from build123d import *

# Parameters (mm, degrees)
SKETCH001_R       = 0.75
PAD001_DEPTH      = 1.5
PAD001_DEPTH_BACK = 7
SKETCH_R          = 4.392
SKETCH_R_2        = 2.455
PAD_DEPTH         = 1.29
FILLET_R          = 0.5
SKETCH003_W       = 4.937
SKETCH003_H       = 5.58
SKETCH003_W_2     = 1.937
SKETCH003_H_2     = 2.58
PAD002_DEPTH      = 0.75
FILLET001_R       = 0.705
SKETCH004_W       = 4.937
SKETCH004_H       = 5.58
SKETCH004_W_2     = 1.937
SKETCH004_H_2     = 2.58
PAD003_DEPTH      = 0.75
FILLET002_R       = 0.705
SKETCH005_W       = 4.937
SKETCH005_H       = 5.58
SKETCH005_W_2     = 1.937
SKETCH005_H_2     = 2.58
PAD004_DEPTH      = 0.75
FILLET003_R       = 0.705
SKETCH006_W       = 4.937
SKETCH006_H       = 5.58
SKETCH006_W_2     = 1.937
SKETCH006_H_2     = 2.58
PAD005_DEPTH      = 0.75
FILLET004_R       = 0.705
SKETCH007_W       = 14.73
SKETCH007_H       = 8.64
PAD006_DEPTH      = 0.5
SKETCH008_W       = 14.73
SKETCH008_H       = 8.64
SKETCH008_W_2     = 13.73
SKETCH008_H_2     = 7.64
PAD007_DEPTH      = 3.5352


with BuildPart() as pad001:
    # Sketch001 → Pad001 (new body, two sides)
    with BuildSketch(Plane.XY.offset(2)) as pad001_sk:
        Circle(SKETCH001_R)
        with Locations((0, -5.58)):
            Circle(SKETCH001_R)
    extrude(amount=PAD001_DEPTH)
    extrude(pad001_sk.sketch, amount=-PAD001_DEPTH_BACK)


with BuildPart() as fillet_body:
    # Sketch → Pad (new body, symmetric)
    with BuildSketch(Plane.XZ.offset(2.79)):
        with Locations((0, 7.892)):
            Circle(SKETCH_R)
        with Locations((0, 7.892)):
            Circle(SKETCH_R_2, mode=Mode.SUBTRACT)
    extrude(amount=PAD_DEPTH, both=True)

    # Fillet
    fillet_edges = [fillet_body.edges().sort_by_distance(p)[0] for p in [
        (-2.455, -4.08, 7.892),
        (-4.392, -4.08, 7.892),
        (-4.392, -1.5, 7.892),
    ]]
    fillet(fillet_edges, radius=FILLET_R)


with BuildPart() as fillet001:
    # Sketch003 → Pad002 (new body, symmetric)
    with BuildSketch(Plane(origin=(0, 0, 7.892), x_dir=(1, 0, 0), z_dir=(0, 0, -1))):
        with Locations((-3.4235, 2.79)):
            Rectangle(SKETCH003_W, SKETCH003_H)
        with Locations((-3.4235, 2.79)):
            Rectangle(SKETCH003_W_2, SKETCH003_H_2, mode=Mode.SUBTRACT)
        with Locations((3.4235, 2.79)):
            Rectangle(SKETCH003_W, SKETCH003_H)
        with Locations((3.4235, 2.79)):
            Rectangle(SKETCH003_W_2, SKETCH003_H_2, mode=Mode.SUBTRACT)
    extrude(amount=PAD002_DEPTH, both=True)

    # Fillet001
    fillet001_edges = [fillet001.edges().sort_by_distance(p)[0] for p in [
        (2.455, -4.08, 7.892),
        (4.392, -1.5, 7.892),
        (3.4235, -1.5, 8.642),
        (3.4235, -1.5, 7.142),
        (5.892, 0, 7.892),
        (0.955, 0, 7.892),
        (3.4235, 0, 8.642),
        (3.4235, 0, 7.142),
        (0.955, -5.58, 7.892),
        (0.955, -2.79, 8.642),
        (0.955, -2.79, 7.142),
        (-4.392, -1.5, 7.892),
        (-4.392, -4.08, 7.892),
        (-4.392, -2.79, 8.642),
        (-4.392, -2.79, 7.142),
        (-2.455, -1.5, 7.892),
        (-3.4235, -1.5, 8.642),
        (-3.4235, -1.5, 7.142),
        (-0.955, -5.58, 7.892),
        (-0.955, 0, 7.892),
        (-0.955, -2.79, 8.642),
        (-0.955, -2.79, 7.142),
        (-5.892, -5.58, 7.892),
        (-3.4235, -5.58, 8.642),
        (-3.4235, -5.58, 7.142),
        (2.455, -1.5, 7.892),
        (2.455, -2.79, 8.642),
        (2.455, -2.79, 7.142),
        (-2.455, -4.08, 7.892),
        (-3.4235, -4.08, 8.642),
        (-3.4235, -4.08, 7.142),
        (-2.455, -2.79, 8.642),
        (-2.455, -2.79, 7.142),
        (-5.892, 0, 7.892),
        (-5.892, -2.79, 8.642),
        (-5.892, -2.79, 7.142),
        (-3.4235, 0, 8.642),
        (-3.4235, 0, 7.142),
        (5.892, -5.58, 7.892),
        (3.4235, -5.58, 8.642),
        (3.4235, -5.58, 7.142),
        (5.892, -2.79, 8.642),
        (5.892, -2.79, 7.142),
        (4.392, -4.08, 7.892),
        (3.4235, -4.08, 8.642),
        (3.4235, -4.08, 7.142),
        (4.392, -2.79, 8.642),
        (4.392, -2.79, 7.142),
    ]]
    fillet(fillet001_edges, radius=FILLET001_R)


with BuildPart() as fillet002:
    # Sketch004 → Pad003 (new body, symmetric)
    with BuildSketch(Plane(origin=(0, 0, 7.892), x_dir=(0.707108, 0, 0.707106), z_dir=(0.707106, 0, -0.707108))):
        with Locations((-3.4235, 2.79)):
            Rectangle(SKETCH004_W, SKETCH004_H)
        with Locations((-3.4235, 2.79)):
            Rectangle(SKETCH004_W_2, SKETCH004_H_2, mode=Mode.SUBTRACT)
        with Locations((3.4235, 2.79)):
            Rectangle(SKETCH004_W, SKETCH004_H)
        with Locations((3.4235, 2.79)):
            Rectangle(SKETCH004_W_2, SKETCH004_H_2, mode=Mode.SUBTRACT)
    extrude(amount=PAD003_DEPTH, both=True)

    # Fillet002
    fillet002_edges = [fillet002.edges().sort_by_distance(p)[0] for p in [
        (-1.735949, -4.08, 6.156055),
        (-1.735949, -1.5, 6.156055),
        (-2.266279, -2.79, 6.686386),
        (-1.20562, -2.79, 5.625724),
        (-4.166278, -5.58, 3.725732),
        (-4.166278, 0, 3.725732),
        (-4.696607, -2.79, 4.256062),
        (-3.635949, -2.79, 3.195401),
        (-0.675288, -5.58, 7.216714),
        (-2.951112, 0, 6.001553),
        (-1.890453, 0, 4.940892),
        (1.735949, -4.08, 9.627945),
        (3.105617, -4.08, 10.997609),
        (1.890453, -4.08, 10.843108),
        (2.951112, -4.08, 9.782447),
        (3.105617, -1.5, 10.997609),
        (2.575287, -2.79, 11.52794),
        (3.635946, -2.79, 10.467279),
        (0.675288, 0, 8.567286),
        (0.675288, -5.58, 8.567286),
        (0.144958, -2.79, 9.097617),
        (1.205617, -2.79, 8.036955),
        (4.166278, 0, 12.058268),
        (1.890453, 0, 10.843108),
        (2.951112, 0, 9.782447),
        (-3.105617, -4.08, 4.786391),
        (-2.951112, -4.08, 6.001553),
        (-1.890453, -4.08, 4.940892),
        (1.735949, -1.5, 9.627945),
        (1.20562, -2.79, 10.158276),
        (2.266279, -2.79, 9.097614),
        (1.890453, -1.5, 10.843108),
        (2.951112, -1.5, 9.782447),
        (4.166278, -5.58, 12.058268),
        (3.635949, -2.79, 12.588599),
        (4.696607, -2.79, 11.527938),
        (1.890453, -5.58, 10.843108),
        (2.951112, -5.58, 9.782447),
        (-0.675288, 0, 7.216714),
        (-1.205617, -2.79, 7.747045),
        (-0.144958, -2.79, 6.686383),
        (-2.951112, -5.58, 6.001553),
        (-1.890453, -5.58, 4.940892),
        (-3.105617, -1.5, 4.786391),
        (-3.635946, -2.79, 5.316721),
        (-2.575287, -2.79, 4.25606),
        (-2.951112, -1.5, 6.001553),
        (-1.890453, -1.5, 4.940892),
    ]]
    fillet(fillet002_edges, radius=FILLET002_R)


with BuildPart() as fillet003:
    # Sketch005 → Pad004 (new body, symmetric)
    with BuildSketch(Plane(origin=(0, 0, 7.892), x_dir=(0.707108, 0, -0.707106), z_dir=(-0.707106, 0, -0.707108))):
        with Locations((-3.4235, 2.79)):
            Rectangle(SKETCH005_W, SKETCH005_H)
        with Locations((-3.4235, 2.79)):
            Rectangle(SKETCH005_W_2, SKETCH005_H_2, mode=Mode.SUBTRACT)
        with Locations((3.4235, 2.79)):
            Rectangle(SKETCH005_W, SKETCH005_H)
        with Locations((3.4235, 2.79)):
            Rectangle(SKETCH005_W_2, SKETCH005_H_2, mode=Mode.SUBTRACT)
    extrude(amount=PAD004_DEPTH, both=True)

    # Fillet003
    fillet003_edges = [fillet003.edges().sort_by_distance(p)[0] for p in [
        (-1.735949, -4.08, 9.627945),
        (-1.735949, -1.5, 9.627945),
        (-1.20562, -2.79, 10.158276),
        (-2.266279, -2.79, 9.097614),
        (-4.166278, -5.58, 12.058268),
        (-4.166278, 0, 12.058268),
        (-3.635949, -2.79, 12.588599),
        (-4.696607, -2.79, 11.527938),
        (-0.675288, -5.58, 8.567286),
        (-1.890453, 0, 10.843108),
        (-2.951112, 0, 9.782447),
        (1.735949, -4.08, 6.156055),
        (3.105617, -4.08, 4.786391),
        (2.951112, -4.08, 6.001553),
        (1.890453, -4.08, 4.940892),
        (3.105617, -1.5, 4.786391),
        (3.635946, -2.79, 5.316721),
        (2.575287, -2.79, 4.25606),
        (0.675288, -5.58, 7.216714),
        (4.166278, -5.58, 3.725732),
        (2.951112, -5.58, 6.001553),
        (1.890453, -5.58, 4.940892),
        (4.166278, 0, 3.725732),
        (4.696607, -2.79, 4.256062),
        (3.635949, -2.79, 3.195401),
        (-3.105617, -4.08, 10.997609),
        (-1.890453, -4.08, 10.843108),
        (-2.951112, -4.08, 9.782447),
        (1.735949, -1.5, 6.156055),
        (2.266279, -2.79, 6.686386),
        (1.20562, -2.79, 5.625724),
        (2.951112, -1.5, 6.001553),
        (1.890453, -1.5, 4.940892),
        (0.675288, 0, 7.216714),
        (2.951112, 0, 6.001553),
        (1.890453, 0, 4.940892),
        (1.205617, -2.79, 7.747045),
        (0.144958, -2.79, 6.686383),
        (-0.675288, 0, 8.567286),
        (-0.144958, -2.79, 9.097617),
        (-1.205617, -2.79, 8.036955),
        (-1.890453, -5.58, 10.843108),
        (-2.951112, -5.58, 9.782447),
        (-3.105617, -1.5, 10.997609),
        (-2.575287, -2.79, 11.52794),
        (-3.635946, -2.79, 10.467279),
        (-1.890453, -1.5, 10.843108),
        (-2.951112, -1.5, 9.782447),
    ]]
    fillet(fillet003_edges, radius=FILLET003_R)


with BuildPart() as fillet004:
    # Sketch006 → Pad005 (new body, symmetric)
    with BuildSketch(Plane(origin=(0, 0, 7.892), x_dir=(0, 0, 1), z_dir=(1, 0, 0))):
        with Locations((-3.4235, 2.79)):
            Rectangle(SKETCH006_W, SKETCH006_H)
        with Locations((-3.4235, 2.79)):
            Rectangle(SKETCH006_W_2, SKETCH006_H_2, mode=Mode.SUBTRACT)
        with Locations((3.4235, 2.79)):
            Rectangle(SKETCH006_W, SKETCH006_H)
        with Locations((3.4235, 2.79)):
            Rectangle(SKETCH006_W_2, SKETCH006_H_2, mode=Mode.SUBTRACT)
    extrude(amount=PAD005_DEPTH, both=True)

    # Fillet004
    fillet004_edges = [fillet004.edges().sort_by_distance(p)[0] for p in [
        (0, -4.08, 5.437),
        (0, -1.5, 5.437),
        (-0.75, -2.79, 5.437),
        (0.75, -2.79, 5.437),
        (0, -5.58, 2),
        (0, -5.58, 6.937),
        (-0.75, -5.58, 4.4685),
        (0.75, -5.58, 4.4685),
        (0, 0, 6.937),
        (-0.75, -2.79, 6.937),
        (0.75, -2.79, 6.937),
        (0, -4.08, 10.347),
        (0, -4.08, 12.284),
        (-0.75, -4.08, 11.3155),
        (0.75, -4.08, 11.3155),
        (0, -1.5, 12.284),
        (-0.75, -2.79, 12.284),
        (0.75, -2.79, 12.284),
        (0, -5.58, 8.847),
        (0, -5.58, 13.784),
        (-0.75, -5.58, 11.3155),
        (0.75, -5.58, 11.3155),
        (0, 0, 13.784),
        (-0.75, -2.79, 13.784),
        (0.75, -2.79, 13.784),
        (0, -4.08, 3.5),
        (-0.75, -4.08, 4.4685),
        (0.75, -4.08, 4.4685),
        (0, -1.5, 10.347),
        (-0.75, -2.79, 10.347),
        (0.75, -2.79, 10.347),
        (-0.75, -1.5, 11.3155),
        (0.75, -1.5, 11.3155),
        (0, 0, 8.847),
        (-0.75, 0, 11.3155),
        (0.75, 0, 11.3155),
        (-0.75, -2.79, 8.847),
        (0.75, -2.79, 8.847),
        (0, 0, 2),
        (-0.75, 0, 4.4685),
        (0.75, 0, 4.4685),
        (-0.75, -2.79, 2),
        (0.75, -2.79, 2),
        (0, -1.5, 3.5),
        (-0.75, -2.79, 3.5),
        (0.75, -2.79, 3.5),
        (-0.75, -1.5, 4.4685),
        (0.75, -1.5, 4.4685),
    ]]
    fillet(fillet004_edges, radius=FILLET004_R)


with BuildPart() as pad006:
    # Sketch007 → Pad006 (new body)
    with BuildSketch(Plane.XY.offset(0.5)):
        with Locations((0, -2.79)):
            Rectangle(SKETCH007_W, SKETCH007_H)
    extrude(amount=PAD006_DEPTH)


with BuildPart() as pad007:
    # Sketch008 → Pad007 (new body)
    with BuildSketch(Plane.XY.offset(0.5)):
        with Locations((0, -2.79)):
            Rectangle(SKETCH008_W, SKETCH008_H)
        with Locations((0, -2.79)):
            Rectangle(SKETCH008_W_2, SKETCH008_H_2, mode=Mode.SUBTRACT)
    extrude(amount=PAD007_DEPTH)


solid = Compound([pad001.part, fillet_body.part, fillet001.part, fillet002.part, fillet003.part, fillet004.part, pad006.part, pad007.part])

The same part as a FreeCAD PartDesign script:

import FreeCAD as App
import Part
import Sketcher
from FreeCAD import Vector
Q = App.Units.Quantity


def edges_at(feature, points):
    """Names of the edges that pass closest to the given points."""
    edges = feature.Shape.Edges
    near = lambda p: min(range(len(edges)), key=lambda i: edges[i].distToShape(Part.Vertex(*p))[0])
    return sorted({f"Edge{near(p) + 1}" for p in points})

doc = App.newDocument("Part")
params = doc.addObject("Spreadsheet::Sheet", "Params")
for row, (alias, value) in enumerate([
    ("sketch1_diameter", "1.5 mm"),
    ("pad1_length", "1.5 mm"),
    ("pad1_length2", "7 mm"),
    ("sketch2_diameter", "4.91 mm"),
    ("pad2_length", "2.58 mm"),
    ("fillet_radius", "0.5 mm"),
    ("sketch3_height", "5.58 mm"),
    ("sketch3_height2", "2.58 mm"),
    ("pad3_length", "1.5 mm"),
    ("fillet2_radius", "0.705 mm"),
    ("sketch4_height", "5.58 mm"),
    ("sketch4_height2", "2.58 mm"),
    ("pad4_length", "1.5 mm"),
    ("fillet3_radius", "0.705 mm"),
    ("sketch5_height", "5.58 mm"),
    ("sketch5_height2", "2.58 mm"),
    ("pad5_length", "1.5 mm"),
    ("fillet4_radius", "0.705 mm"),
    ("sketch6_width", "5.58 mm"),
    ("sketch6_width2", "2.58 mm"),
    ("pad6_length", "1.5 mm"),
    ("fillet5_radius", "0.705 mm"),
    ("sketch7_width", "14.73 mm"),
    ("sketch7_height", "8.64 mm"),
    ("pad7_length", "0.5 mm"),
    ("sketch8_width", "14.73 mm"),
    ("sketch8_width2", "13.73 mm"),
    ("sketch8_height", "8.64 mm"),
    ("sketch8_height2", "7.64 mm"),
    ("pad8_length", "3.5352 mm"),
], start=1):
    params.set(f"A{row}", alias)
    params.set(f"B{row}", "=" + value)
    params.setAlias(f"B{row}", alias)

body = doc.addObject("PartDesign::Body", "Body")
body.AllowCompound = True

# Sketch on XY plane
sketch1 = body.newObject("Sketcher::SketchObject", "Sketch")
sketch1.AttachmentSupport = (doc.getObject("XY_Plane"), [""])
sketch1.MapMode = "FlatFace"
sketch1.AttachmentOffset = App.Placement(Vector(0, 0, 2), App.Rotation())
sketch1.addGeometry(Part.Circle(Vector(0, 0, 0), Vector(0, 0, 1), 0.8), False)
sketch1.addGeometry(Part.Circle(Vector(0, -5.6, 0), Vector(0, 0, 1), 0.8), False)
sketch1.addConstraint(Sketcher.Constraint("Coincident", 0, 3, -1, 1))
sketch1.addConstraint(Sketcher.Constraint("Equal", 0, 1))
sketch1.addConstraint(Sketcher.Constraint("PointOnObject", 1, 3, -2))
sketch1.addConstraint(Sketcher.Constraint("Diameter", 0, Q("1.5 mm")))
sketch1.addConstraint(Sketcher.Constraint("DistanceY", 1, 3, -1, 1, Q("5.58 mm")))
sketch1.setExpression("Constraints[3]", "Params.sketch1_diameter")
pad1 = body.newObject("PartDesign::Pad", "Pad")
pad1.Profile = sketch1
pad1.Type = "TwoLengths"
pad1.setExpression("Length", "Params.pad1_length")
pad1.setExpression("Length2", "Params.pad1_length2")
body2 = doc.addObject("PartDesign::Body", "Body001")

# Sketch on XZ plane
sketch2 = body2.newObject("Sketcher::SketchObject", "Sketch001")
sketch2.AttachmentSupport = (doc.getObject("XZ_Plane001"), [""])
sketch2.MapMode = "FlatFace"
sketch2.AttachmentOffset = App.Placement(Vector(0, 0, 2.79), App.Rotation())
sketch2.addGeometry(Part.Circle(Vector(0, 7.9, 0), Vector(0, 0, 1), 4.4), False)
sketch2.addGeometry(Part.Circle(Vector(0, 7.9, 0), Vector(0, 0, 1), 2.5), False)
sketch2.addConstraint(Sketcher.Constraint("Coincident", 1, 3, 0, 3))
sketch2.addConstraint(Sketcher.Constraint("PointOnObject", 0, 3, -2))
sketch2.addConstraint(Sketcher.Constraint("Diameter", 1, Q("4.91 mm")))
sketch2.addConstraint(Sketcher.Constraint("Diameter", 0, Q("8.784 mm")))
sketch2.addConstraint(Sketcher.Constraint("DistanceY", -1, 1, 0, 3, Q("7.892 mm")))
sketch2.setExpression("Constraints[2]", "Params.sketch2_diameter")
pad2 = body2.newObject("PartDesign::Pad", "Pad001")
pad2.Profile = sketch2
pad2.setExpression("Length", "Params.pad2_length")
pad2.Midplane = True
doc.recompute()

fillet = body2.newObject("PartDesign::Fillet", "Fillet")
fillet.Base = (pad2, edges_at(pad2, [(-2.455, -4.08, 7.892), (-4.392, -4.08, 7.892), (-4.392, -1.5, 7.892)]))
fillet.setExpression("Radius", "Params.fillet_radius")
body3 = doc.addObject("PartDesign::Body", "Body002")
body3.AllowCompound = True

# Sketch on XY plane
sketch3 = body3.newObject("Sketcher::SketchObject", "Sketch002")
sketch3.AttachmentSupport = (doc.getObject("XY_Plane002"), [""])
sketch3.MapMode = "FlatFace"
sketch3.AttachmentOffset = App.Placement(Vector(0, 0, 7.892), App.Rotation())
sketch3.addGeometry(Part.LineSegment(Vector(-5.9, -5.6, 0), Vector(-5.9, 0, 0)), False)
sketch3.addGeometry(Part.LineSegment(Vector(-5.9, 0, 0), Vector(-1, 0, 0)), False)
sketch3.addGeometry(Part.LineSegment(Vector(-1, 0, 0), Vector(-1, -5.6, 0)), False)
sketch3.addGeometry(Part.LineSegment(Vector(-1, -5.6, 0), Vector(-5.9, -5.6, 0)), False)
sketch3.addGeometry(Part.LineSegment(Vector(-2.5, -1.5, 0), Vector(-4.4, -1.5, 0)), False)
sketch3.addGeometry(Part.LineSegment(Vector(-4.4, -1.5, 0), Vector(-4.4, -4.1, 0)), False)
sketch3.addGeometry(Part.LineSegment(Vector(-4.4, -4.1, 0), Vector(-2.5, -4.1, 0)), False)
sketch3.addGeometry(Part.LineSegment(Vector(-2.5, -4.1, 0), Vector(-2.5, -1.5, 0)), False)
sketch3.addGeometry(Part.LineSegment(Vector(1, -5.6, 0), Vector(1, 0, 0)), False)
sketch3.addGeometry(Part.LineSegment(Vector(1, 0, 0), Vector(5.9, 0, 0)), False)
sketch3.addGeometry(Part.LineSegment(Vector(5.9, 0, 0), Vector(5.9, -5.6, 0)), False)
sketch3.addGeometry(Part.LineSegment(Vector(5.9, -5.6, 0), Vector(1, -5.6, 0)), False)
sketch3.addGeometry(Part.LineSegment(Vector(4.4, -1.5, 0), Vector(2.5, -1.5, 0)), False)
sketch3.addGeometry(Part.LineSegment(Vector(2.5, -1.5, 0), Vector(2.5, -4.1, 0)), False)
sketch3.addGeometry(Part.LineSegment(Vector(2.5, -4.1, 0), Vector(4.4, -4.1, 0)), False)
sketch3.addGeometry(Part.LineSegment(Vector(4.4, -4.1, 0), Vector(4.4, -1.5, 0)), False)
sketch3.addConstraint(Sketcher.Constraint("Coincident", 0, 2, 1, 1))
sketch3.addConstraint(Sketcher.Constraint("Coincident", 1, 2, 2, 1))
sketch3.addConstraint(Sketcher.Constraint("Coincident", 2, 2, 3, 1))
sketch3.addConstraint(Sketcher.Constraint("Coincident", 3, 2, 0, 1))
sketch3.addConstraint(Sketcher.Constraint("Coincident", 4, 2, 5, 1))
sketch3.addConstraint(Sketcher.Constraint("Coincident", 5, 2, 6, 1))
sketch3.addConstraint(Sketcher.Constraint("Coincident", 6, 2, 7, 1))
sketch3.addConstraint(Sketcher.Constraint("Coincident", 7, 2, 4, 1))
sketch3.addConstraint(Sketcher.Constraint("Coincident", 8, 2, 9, 1))
sketch3.addConstraint(Sketcher.Constraint("Coincident", 9, 2, 10, 1))
sketch3.addConstraint(Sketcher.Constraint("Coincident", 10, 2, 11, 1))
sketch3.addConstraint(Sketcher.Constraint("Coincident", 11, 2, 8, 1))
sketch3.addConstraint(Sketcher.Constraint("Coincident", 12, 2, 13, 1))
sketch3.addConstraint(Sketcher.Constraint("Coincident", 13, 2, 14, 1))
sketch3.addConstraint(Sketcher.Constraint("Coincident", 14, 2, 15, 1))
sketch3.addConstraint(Sketcher.Constraint("Coincident", 15, 2, 12, 1))
sketch3.addConstraint(Sketcher.Constraint("Vertical", 0))
sketch3.addConstraint(Sketcher.Constraint("Horizontal", 1))
sketch3.addConstraint(Sketcher.Constraint("Vertical", 2))
sketch3.addConstraint(Sketcher.Constraint("Horizontal", 3))
sketch3.addConstraint(Sketcher.Constraint("Horizontal", 4))
sketch3.addConstraint(Sketcher.Constraint("Vertical", 5))
sketch3.addConstraint(Sketcher.Constraint("Horizontal", 6))
sketch3.addConstraint(Sketcher.Constraint("Vertical", 7))
sketch3.addConstraint(Sketcher.Constraint("Vertical", 8))
sketch3.addConstraint(Sketcher.Constraint("Horizontal", 9))
sketch3.addConstraint(Sketcher.Constraint("Vertical", 10))
sketch3.addConstraint(Sketcher.Constraint("Horizontal", 11))
sketch3.addConstraint(Sketcher.Constraint("Horizontal", 12))
sketch3.addConstraint(Sketcher.Constraint("Vertical", 13))
sketch3.addConstraint(Sketcher.Constraint("Horizontal", 14))
sketch3.addConstraint(Sketcher.Constraint("Vertical", 15))
sketch3.addConstraint(Sketcher.Constraint("Symmetric", 1, 2, 8, 2, -1, 1))
sketch3.addConstraint(Sketcher.Constraint("Symmetric", 0, 2, 9, 2, -2))
sketch3.addConstraint(Sketcher.Constraint("Symmetric", 7, 2, 12, 2, -2))
sketch3.addConstraint(Sketcher.Constraint("Symmetric", 5, 2, 14, 2, -2))
sketch3.addConstraint(Sketcher.Constraint("Horizontal", 3, 2, 10, 2))
sketch3.addConstraint(Sketcher.Constraint("DistanceY", 0, 1, 0, 2, Q("5.58 mm")))
sketch3.addConstraint(Sketcher.Constraint("DistanceY", 5, 2, 5, 1, Q("2.58 mm")))
sketch3.addConstraint(Sketcher.Constraint("DistanceY", 4, 2, -1, 1, Q("1.5 mm")))
sketch3.addConstraint(Sketcher.Constraint("DistanceX", 0, 2, 4, 2, Q("1.5 mm")))
sketch3.addConstraint(Sketcher.Constraint("DistanceX", 6, 2, 2, 2, Q("1.5 mm")))
sketch3.addConstraint(Sketcher.Constraint("DistanceX", 1, 1, 1, 2, Q("4.937 mm")))
sketch3.addConstraint(Sketcher.Constraint("DistanceX", 1, 2, 8, 2, Q("1.91 mm")))
sketch3.setExpression("Constraints[37]", "Params.sketch3_height")
sketch3.setExpression("Constraints[38]", "Params.sketch3_height2")
pad3 = body3.newObject("PartDesign::Pad", "Pad002")
pad3.Profile = sketch3
pad3.setExpression("Length", "Params.pad3_length")
pad3.Midplane = True
doc.recompute()

fillet2 = body3.newObject("PartDesign::Fillet", "Fillet001")
fillet2.Base = (pad3, ["Edge1"])
fillet2.UseAllEdges = True
fillet2.setExpression("Radius", "Params.fillet2_radius")
body4 = doc.addObject("PartDesign::Body", "Body003")
body4.AllowCompound = True

# Sketch on an angled plane
sketch4 = body4.newObject("Sketcher::SketchObject", "Sketch003")
sketch4.Placement = App.Placement(Vector(0, 0, 7.892), App.Rotation(Vector(0.707107781, 0, 0.707105781), Vector(0, -0.999999999, 0), Vector(0.707105781, 0, -0.707107781), "ZXY"))
sketch4.addGeometry(Part.LineSegment(Vector(-5.9, 5.6, 0), Vector(-5.9, 0, 0)), False)
sketch4.addGeometry(Part.LineSegment(Vector(-5.9, 0, 0), Vector(-1, 0, 0)), False)
sketch4.addGeometry(Part.LineSegment(Vector(-1, 0, 0), Vector(-1, 5.6, 0)), False)
sketch4.addGeometry(Part.LineSegment(Vector(-1, 5.6, 0), Vector(-5.9, 5.6, 0)), False)
sketch4.addGeometry(Part.LineSegment(Vector(-2.5, 1.5, 0), Vector(-4.4, 1.5, 0)), False)
sketch4.addGeometry(Part.LineSegment(Vector(-4.4, 1.5, 0), Vector(-4.4, 4.1, 0)), False)
sketch4.addGeometry(Part.LineSegment(Vector(-4.4, 4.1, 0), Vector(-2.5, 4.1, 0)), False)
sketch4.addGeometry(Part.LineSegment(Vector(-2.5, 4.1, 0), Vector(-2.5, 1.5, 0)), False)
sketch4.addGeometry(Part.LineSegment(Vector(1, 5.6, 0), Vector(1, 0, 0)), False)
sketch4.addGeometry(Part.LineSegment(Vector(1, 0, 0), Vector(5.9, 0, 0)), False)
sketch4.addGeometry(Part.LineSegment(Vector(5.9, 0, 0), Vector(5.9, 5.6, 0)), False)
sketch4.addGeometry(Part.LineSegment(Vector(5.9, 5.6, 0), Vector(1, 5.6, 0)), False)
sketch4.addGeometry(Part.LineSegment(Vector(4.4, 1.5, 0), Vector(2.5, 1.5, 0)), False)
sketch4.addGeometry(Part.LineSegment(Vector(2.5, 1.5, 0), Vector(2.5, 4.1, 0)), False)
sketch4.addGeometry(Part.LineSegment(Vector(2.5, 4.1, 0), Vector(4.4, 4.1, 0)), False)
sketch4.addGeometry(Part.LineSegment(Vector(4.4, 4.1, 0), Vector(4.4, 1.5, 0)), False)
sketch4.addConstraint(Sketcher.Constraint("Coincident", 0, 2, 1, 1))
sketch4.addConstraint(Sketcher.Constraint("Coincident", 1, 2, 2, 1))
sketch4.addConstraint(Sketcher.Constraint("Coincident", 2, 2, 3, 1))
sketch4.addConstraint(Sketcher.Constraint("Coincident", 3, 2, 0, 1))
sketch4.addConstraint(Sketcher.Constraint("Coincident", 4, 2, 5, 1))
sketch4.addConstraint(Sketcher.Constraint("Coincident", 5, 2, 6, 1))
sketch4.addConstraint(Sketcher.Constraint("Coincident", 6, 2, 7, 1))
sketch4.addConstraint(Sketcher.Constraint("Coincident", 7, 2, 4, 1))
sketch4.addConstraint(Sketcher.Constraint("Coincident", 8, 2, 9, 1))
sketch4.addConstraint(Sketcher.Constraint("Coincident", 9, 2, 10, 1))
sketch4.addConstraint(Sketcher.Constraint("Coincident", 10, 2, 11, 1))
sketch4.addConstraint(Sketcher.Constraint("Coincident", 11, 2, 8, 1))
sketch4.addConstraint(Sketcher.Constraint("Coincident", 12, 2, 13, 1))
sketch4.addConstraint(Sketcher.Constraint("Coincident", 13, 2, 14, 1))
sketch4.addConstraint(Sketcher.Constraint("Coincident", 14, 2, 15, 1))
sketch4.addConstraint(Sketcher.Constraint("Coincident", 15, 2, 12, 1))
sketch4.addConstraint(Sketcher.Constraint("Vertical", 0))
sketch4.addConstraint(Sketcher.Constraint("Horizontal", 1))
sketch4.addConstraint(Sketcher.Constraint("Vertical", 2))
sketch4.addConstraint(Sketcher.Constraint("Horizontal", 3))
sketch4.addConstraint(Sketcher.Constraint("Horizontal", 4))
sketch4.addConstraint(Sketcher.Constraint("Vertical", 5))
sketch4.addConstraint(Sketcher.Constraint("Horizontal", 6))
sketch4.addConstraint(Sketcher.Constraint("Vertical", 7))
sketch4.addConstraint(Sketcher.Constraint("Vertical", 8))
sketch4.addConstraint(Sketcher.Constraint("Horizontal", 9))
sketch4.addConstraint(Sketcher.Constraint("Vertical", 10))
sketch4.addConstraint(Sketcher.Constraint("Horizontal", 11))
sketch4.addConstraint(Sketcher.Constraint("Horizontal", 12))
sketch4.addConstraint(Sketcher.Constraint("Vertical", 13))
sketch4.addConstraint(Sketcher.Constraint("Horizontal", 14))
sketch4.addConstraint(Sketcher.Constraint("Vertical", 15))
sketch4.addConstraint(Sketcher.Constraint("Symmetric", 1, 2, 8, 2, -1, 1))
sketch4.addConstraint(Sketcher.Constraint("Symmetric", 0, 2, 9, 2, -2))
sketch4.addConstraint(Sketcher.Constraint("Symmetric", 7, 2, 12, 2, -2))
sketch4.addConstraint(Sketcher.Constraint("Symmetric", 5, 2, 14, 2, -2))
sketch4.addConstraint(Sketcher.Constraint("Horizontal", 3, 2, 10, 2))
sketch4.addConstraint(Sketcher.Constraint("DistanceY", 0, 2, 0, 1, Q("5.58 mm")))
sketch4.addConstraint(Sketcher.Constraint("DistanceY", 5, 1, 5, 2, Q("2.58 mm")))
sketch4.addConstraint(Sketcher.Constraint("DistanceY", -1, 1, 4, 2, Q("1.5 mm")))
sketch4.addConstraint(Sketcher.Constraint("DistanceX", 0, 2, 4, 2, Q("1.5 mm")))
sketch4.addConstraint(Sketcher.Constraint("DistanceX", 6, 2, 2, 2, Q("1.5 mm")))
sketch4.addConstraint(Sketcher.Constraint("DistanceX", 1, 1, 1, 2, Q("4.937 mm")))
sketch4.addConstraint(Sketcher.Constraint("DistanceX", 1, 2, 8, 2, Q("1.91 mm")))
sketch4.setExpression("Constraints[37]", "Params.sketch4_height")
sketch4.setExpression("Constraints[38]", "Params.sketch4_height2")
pad4 = body4.newObject("PartDesign::Pad", "Pad003")
pad4.Profile = sketch4
pad4.setExpression("Length", "Params.pad4_length")
pad4.Midplane = True
doc.recompute()

fillet3 = body4.newObject("PartDesign::Fillet", "Fillet002")
fillet3.Base = (pad4, ["Edge1"])
fillet3.UseAllEdges = True
fillet3.setExpression("Radius", "Params.fillet3_radius")
body5 = doc.addObject("PartDesign::Body", "Body004")
body5.AllowCompound = True

# Sketch on an angled plane
sketch5 = body5.newObject("Sketcher::SketchObject", "Sketch004")
sketch5.Placement = App.Placement(Vector(0, 0, 7.892), App.Rotation(Vector(0.707107781, 0, -0.707105781), Vector(0, -0.999999999, 0), Vector(-0.707105781, 0, -0.707107781), "ZXY"))
sketch5.addGeometry(Part.LineSegment(Vector(-5.9, 5.6, 0), Vector(-5.9, 0, 0)), False)
sketch5.addGeometry(Part.LineSegment(Vector(-5.9, 0, 0), Vector(-1, 0, 0)), False)
sketch5.addGeometry(Part.LineSegment(Vector(-1, 0, 0), Vector(-1, 5.6, 0)), False)
sketch5.addGeometry(Part.LineSegment(Vector(-1, 5.6, 0), Vector(-5.9, 5.6, 0)), False)
sketch5.addGeometry(Part.LineSegment(Vector(-2.5, 1.5, 0), Vector(-4.4, 1.5, 0)), False)
sketch5.addGeometry(Part.LineSegment(Vector(-4.4, 1.5, 0), Vector(-4.4, 4.1, 0)), False)
sketch5.addGeometry(Part.LineSegment(Vector(-4.4, 4.1, 0), Vector(-2.5, 4.1, 0)), False)
sketch5.addGeometry(Part.LineSegment(Vector(-2.5, 4.1, 0), Vector(-2.5, 1.5, 0)), False)
sketch5.addGeometry(Part.LineSegment(Vector(1, 5.6, 0), Vector(1, 0, 0)), False)
sketch5.addGeometry(Part.LineSegment(Vector(1, 0, 0), Vector(5.9, 0, 0)), False)
sketch5.addGeometry(Part.LineSegment(Vector(5.9, 0, 0), Vector(5.9, 5.6, 0)), False)
sketch5.addGeometry(Part.LineSegment(Vector(5.9, 5.6, 0), Vector(1, 5.6, 0)), False)
sketch5.addGeometry(Part.LineSegment(Vector(4.4, 1.5, 0), Vector(2.5, 1.5, 0)), False)
sketch5.addGeometry(Part.LineSegment(Vector(2.5, 1.5, 0), Vector(2.5, 4.1, 0)), False)
sketch5.addGeometry(Part.LineSegment(Vector(2.5, 4.1, 0), Vector(4.4, 4.1, 0)), False)
sketch5.addGeometry(Part.LineSegment(Vector(4.4, 4.1, 0), Vector(4.4, 1.5, 0)), False)
sketch5.addConstraint(Sketcher.Constraint("Coincident", 0, 2, 1, 1))
sketch5.addConstraint(Sketcher.Constraint("Coincident", 1, 2, 2, 1))
sketch5.addConstraint(Sketcher.Constraint("Coincident", 2, 2, 3, 1))
sketch5.addConstraint(Sketcher.Constraint("Coincident", 3, 2, 0, 1))
sketch5.addConstraint(Sketcher.Constraint("Coincident", 4, 2, 5, 1))
sketch5.addConstraint(Sketcher.Constraint("Coincident", 5, 2, 6, 1))
sketch5.addConstraint(Sketcher.Constraint("Coincident", 6, 2, 7, 1))
sketch5.addConstraint(Sketcher.Constraint("Coincident", 7, 2, 4, 1))
sketch5.addConstraint(Sketcher.Constraint("Coincident", 8, 2, 9, 1))
sketch5.addConstraint(Sketcher.Constraint("Coincident", 9, 2, 10, 1))
sketch5.addConstraint(Sketcher.Constraint("Coincident", 10, 2, 11, 1))
sketch5.addConstraint(Sketcher.Constraint("Coincident", 11, 2, 8, 1))
sketch5.addConstraint(Sketcher.Constraint("Coincident", 12, 2, 13, 1))
sketch5.addConstraint(Sketcher.Constraint("Coincident", 13, 2, 14, 1))
sketch5.addConstraint(Sketcher.Constraint("Coincident", 14, 2, 15, 1))
sketch5.addConstraint(Sketcher.Constraint("Coincident", 15, 2, 12, 1))
sketch5.addConstraint(Sketcher.Constraint("Vertical", 0))
sketch5.addConstraint(Sketcher.Constraint("Horizontal", 1))
sketch5.addConstraint(Sketcher.Constraint("Vertical", 2))
sketch5.addConstraint(Sketcher.Constraint("Horizontal", 3))
sketch5.addConstraint(Sketcher.Constraint("Horizontal", 4))
sketch5.addConstraint(Sketcher.Constraint("Vertical", 5))
sketch5.addConstraint(Sketcher.Constraint("Horizontal", 6))
sketch5.addConstraint(Sketcher.Constraint("Vertical", 7))
sketch5.addConstraint(Sketcher.Constraint("Vertical", 8))
sketch5.addConstraint(Sketcher.Constraint("Horizontal", 9))
sketch5.addConstraint(Sketcher.Constraint("Vertical", 10))
sketch5.addConstraint(Sketcher.Constraint("Horizontal", 11))
sketch5.addConstraint(Sketcher.Constraint("Horizontal", 12))
sketch5.addConstraint(Sketcher.Constraint("Vertical", 13))
sketch5.addConstraint(Sketcher.Constraint("Horizontal", 14))
sketch5.addConstraint(Sketcher.Constraint("Vertical", 15))
sketch5.addConstraint(Sketcher.Constraint("Symmetric", 1, 2, 8, 2, -1, 1))
sketch5.addConstraint(Sketcher.Constraint("Symmetric", 0, 2, 9, 2, -2))
sketch5.addConstraint(Sketcher.Constraint("Symmetric", 7, 2, 12, 2, -2))
sketch5.addConstraint(Sketcher.Constraint("Symmetric", 5, 2, 14, 2, -2))
sketch5.addConstraint(Sketcher.Constraint("Horizontal", 3, 2, 10, 2))
sketch5.addConstraint(Sketcher.Constraint("DistanceY", 0, 2, 0, 1, Q("5.58 mm")))
sketch5.addConstraint(Sketcher.Constraint("DistanceY", 5, 1, 5, 2, Q("2.58 mm")))
sketch5.addConstraint(Sketcher.Constraint("DistanceY", -1, 1, 4, 2, Q("1.5 mm")))
sketch5.addConstraint(Sketcher.Constraint("DistanceX", 0, 2, 4, 2, Q("1.5 mm")))
sketch5.addConstraint(Sketcher.Constraint("DistanceX", 6, 2, 2, 2, Q("1.5 mm")))
sketch5.addConstraint(Sketcher.Constraint("DistanceX", 1, 1, 1, 2, Q("4.937 mm")))
sketch5.addConstraint(Sketcher.Constraint("DistanceX", 1, 2, 8, 2, Q("1.91 mm")))
sketch5.setExpression("Constraints[37]", "Params.sketch5_height")
sketch5.setExpression("Constraints[38]", "Params.sketch5_height2")
pad5 = body5.newObject("PartDesign::Pad", "Pad004")
pad5.Profile = sketch5
pad5.setExpression("Length", "Params.pad5_length")
pad5.Midplane = True
doc.recompute()

fillet4 = body5.newObject("PartDesign::Fillet", "Fillet003")
fillet4.Base = (pad5, ["Edge1"])
fillet4.UseAllEdges = True
fillet4.setExpression("Radius", "Params.fillet4_radius")
body6 = doc.addObject("PartDesign::Body", "Body005")
body6.AllowCompound = True

# Sketch on YZ plane
sketch6 = body6.newObject("Sketcher::SketchObject", "Sketch005")
sketch6.AttachmentSupport = (doc.getObject("YZ_Plane005"), [""])
sketch6.MapMode = "FlatFace"
sketch6.addGeometry(Part.LineSegment(Vector(-5.6, 2, 0), Vector(0, 2, 0)), False)
sketch6.addGeometry(Part.LineSegment(Vector(0, 2, 0), Vector(0, 6.9, 0)), False)
sketch6.addGeometry(Part.LineSegment(Vector(0, 6.9, 0), Vector(-5.6, 6.9, 0)), False)
sketch6.addGeometry(Part.LineSegment(Vector(-5.6, 6.9, 0), Vector(-5.6, 2, 0)), False)
sketch6.addGeometry(Part.LineSegment(Vector(-1.5, 5.4, 0), Vector(-1.5, 3.5, 0)), False)
sketch6.addGeometry(Part.LineSegment(Vector(-1.5, 3.5, 0), Vector(-4.1, 3.5, 0)), False)
sketch6.addGeometry(Part.LineSegment(Vector(-4.1, 3.5, 0), Vector(-4.1, 5.4, 0)), False)
sketch6.addGeometry(Part.LineSegment(Vector(-4.1, 5.4, 0), Vector(-1.5, 5.4, 0)), False)
sketch6.addGeometry(Part.LineSegment(Vector(-5.6, 8.8, 0), Vector(0, 8.8, 0)), False)
sketch6.addGeometry(Part.LineSegment(Vector(0, 8.8, 0), Vector(0, 13.8, 0)), False)
sketch6.addGeometry(Part.LineSegment(Vector(0, 13.8, 0), Vector(-5.6, 13.8, 0)), False)
sketch6.addGeometry(Part.LineSegment(Vector(-5.6, 13.8, 0), Vector(-5.6, 8.8, 0)), False)
sketch6.addGeometry(Part.LineSegment(Vector(-1.5, 12.3, 0), Vector(-1.5, 10.3, 0)), False)
sketch6.addGeometry(Part.LineSegment(Vector(-1.5, 10.3, 0), Vector(-4.1, 10.3, 0)), False)
sketch6.addGeometry(Part.LineSegment(Vector(-4.1, 10.3, 0), Vector(-4.1, 12.3, 0)), False)
sketch6.addGeometry(Part.LineSegment(Vector(-4.1, 12.3, 0), Vector(-1.5, 12.3, 0)), False)
sketch6.addConstraint(Sketcher.Constraint("Coincident", 0, 2, 1, 1))
sketch6.addConstraint(Sketcher.Constraint("Coincident", 1, 2, 2, 1))
sketch6.addConstraint(Sketcher.Constraint("Coincident", 2, 2, 3, 1))
sketch6.addConstraint(Sketcher.Constraint("Coincident", 3, 2, 0, 1))
sketch6.addConstraint(Sketcher.Constraint("Coincident", 4, 2, 5, 1))
sketch6.addConstraint(Sketcher.Constraint("Coincident", 5, 2, 6, 1))
sketch6.addConstraint(Sketcher.Constraint("Coincident", 6, 2, 7, 1))
sketch6.addConstraint(Sketcher.Constraint("Coincident", 7, 2, 4, 1))
sketch6.addConstraint(Sketcher.Constraint("Coincident", 8, 2, 9, 1))
sketch6.addConstraint(Sketcher.Constraint("Coincident", 9, 2, 10, 1))
sketch6.addConstraint(Sketcher.Constraint("Coincident", 10, 2, 11, 1))
sketch6.addConstraint(Sketcher.Constraint("Coincident", 11, 2, 8, 1))
sketch6.addConstraint(Sketcher.Constraint("Coincident", 12, 2, 13, 1))
sketch6.addConstraint(Sketcher.Constraint("Coincident", 13, 2, 14, 1))
sketch6.addConstraint(Sketcher.Constraint("Coincident", 14, 2, 15, 1))
sketch6.addConstraint(Sketcher.Constraint("Coincident", 15, 2, 12, 1))
sketch6.addConstraint(Sketcher.Constraint("Horizontal", 0))
sketch6.addConstraint(Sketcher.Constraint("Vertical", 1))
sketch6.addConstraint(Sketcher.Constraint("Horizontal", 2))
sketch6.addConstraint(Sketcher.Constraint("Vertical", 3))
sketch6.addConstraint(Sketcher.Constraint("Vertical", 4))
sketch6.addConstraint(Sketcher.Constraint("Horizontal", 5))
sketch6.addConstraint(Sketcher.Constraint("Vertical", 6))
sketch6.addConstraint(Sketcher.Constraint("Horizontal", 7))
sketch6.addConstraint(Sketcher.Constraint("Horizontal", 8))
sketch6.addConstraint(Sketcher.Constraint("Vertical", 9))
sketch6.addConstraint(Sketcher.Constraint("Horizontal", 10))
sketch6.addConstraint(Sketcher.Constraint("Vertical", 11))
sketch6.addConstraint(Sketcher.Constraint("Vertical", 12))
sketch6.addConstraint(Sketcher.Constraint("Horizontal", 13))
sketch6.addConstraint(Sketcher.Constraint("Vertical", 14))
sketch6.addConstraint(Sketcher.Constraint("Horizontal", 15))
sketch6.addConstraint(Sketcher.Constraint("PointOnObject", 0, 2, -2))
sketch6.addConstraint(Sketcher.Constraint("PointOnObject", 8, 2, -2))
sketch6.addConstraint(Sketcher.Constraint("Vertical", 3, 2, 10, 2))
sketch6.addConstraint(Sketcher.Constraint("Vertical", 7, 2, 12, 2))
sketch6.addConstraint(Sketcher.Constraint("Vertical", 6, 2, 13, 2))
sketch6.addConstraint(Sketcher.Constraint("Equal", 3, 9))
sketch6.addConstraint(Sketcher.Constraint("Equal", 6, 12))
sketch6.addConstraint(Sketcher.Constraint("DistanceY", -1, 1, 0, 2, Q("2 mm")))
sketch6.addConstraint(Sketcher.Constraint("DistanceX", 0, 1, 0, 2, Q("5.58 mm")))
sketch6.addConstraint(Sketcher.Constraint("DistanceX", 5, 2, 5, 1, Q("2.58 mm")))
sketch6.addConstraint(Sketcher.Constraint("DistanceX", 4, 2, -1, 1, Q("1.5 mm")))
sketch6.addConstraint(Sketcher.Constraint("DistanceY", -1, 1, 4, 2, Q("3.5 mm")))
sketch6.addConstraint(Sketcher.Constraint("DistanceY", 6, 2, 2, 2, Q("1.5 mm")))
sketch6.addConstraint(Sketcher.Constraint("DistanceY", 8, 2, 12, 2, Q("1.5 mm")))
sketch6.addConstraint(Sketcher.Constraint("DistanceY", 1, 1, 1, 2, Q("4.937 mm")))
sketch6.addConstraint(Sketcher.Constraint("DistanceY", 1, 2, 8, 2, Q("1.91 mm")))
sketch6.setExpression("Constraints[40]", "Params.sketch6_width")
sketch6.setExpression("Constraints[41]", "Params.sketch6_width2")
pad6 = body6.newObject("PartDesign::Pad", "Pad005")
pad6.Profile = sketch6
pad6.setExpression("Length", "Params.pad6_length")
pad6.Midplane = True
doc.recompute()

fillet5 = body6.newObject("PartDesign::Fillet", "Fillet004")
fillet5.Base = (pad6, ["Edge1"])
fillet5.UseAllEdges = True
fillet5.setExpression("Radius", "Params.fillet5_radius")
body7 = doc.addObject("PartDesign::Body", "Body006")

# Sketch on XY plane
sketch7 = body7.newObject("Sketcher::SketchObject", "Sketch006")
sketch7.AttachmentSupport = (doc.getObject("XY_Plane006"), [""])
sketch7.MapMode = "FlatFace"
sketch7.AttachmentOffset = App.Placement(Vector(0, 0, 0.5), App.Rotation())
sketch7.addGeometry(Part.LineSegment(Vector(-7, 2, 0), Vector(-7, -7, 0)), False)
sketch7.addGeometry(Part.LineSegment(Vector(-7, -7, 0), Vector(7, -7, 0)), False)
sketch7.addGeometry(Part.LineSegment(Vector(7, -7, 0), Vector(7, 2, 0)), False)
sketch7.addGeometry(Part.LineSegment(Vector(7, 2, 0), Vector(-7, 2, 0)), False)
sketch7.addConstraint(Sketcher.Constraint("Coincident", 0, 2, 1, 1))
sketch7.addConstraint(Sketcher.Constraint("Coincident", 1, 2, 2, 1))
sketch7.addConstraint(Sketcher.Constraint("Coincident", 2, 2, 3, 1))
sketch7.addConstraint(Sketcher.Constraint("Coincident", 3, 2, 0, 1))
sketch7.addConstraint(Sketcher.Constraint("Vertical", 0))
sketch7.addConstraint(Sketcher.Constraint("Horizontal", 1))
sketch7.addConstraint(Sketcher.Constraint("Vertical", 2))
sketch7.addConstraint(Sketcher.Constraint("Horizontal", 3))
sketch7.addConstraint(Sketcher.Constraint("DistanceX", 1, 1, 1, 2, Q("14.73 mm")))
sketch7.addConstraint(Sketcher.Constraint("DistanceY", 0, 2, 0, 1, Q("8.64 mm")))
sketch7.addConstraint(Sketcher.Constraint("DistanceY", 0, 2, -1, 1, Q("7.11 mm")))
sketch7.addConstraint(Sketcher.Constraint("DistanceX", 0, 2, -1, 1, Q("7.365 mm")))
sketch7.setExpression("Constraints[8]", "Params.sketch7_width")
sketch7.setExpression("Constraints[9]", "Params.sketch7_height")
pad7 = body7.newObject("PartDesign::Pad", "Pad006")
pad7.Profile = sketch7
pad7.setExpression("Length", "Params.pad7_length")
body8 = doc.addObject("PartDesign::Body", "Body007")

# Sketch on XY plane
sketch8 = body8.newObject("Sketcher::SketchObject", "Sketch007")
sketch8.AttachmentSupport = (doc.getObject("XY_Plane007"), [""])
sketch8.MapMode = "FlatFace"
sketch8.AttachmentOffset = App.Placement(Vector(0, 0, 0.5), App.Rotation())
sketch8.addGeometry(Part.LineSegment(Vector(-7, 2, 0), Vector(-7, -7, 0)), False)
sketch8.addGeometry(Part.LineSegment(Vector(-7, -7, 0), Vector(7, -7, 0)), False)
sketch8.addGeometry(Part.LineSegment(Vector(7, -7, 0), Vector(7, 2, 0)), False)
sketch8.addGeometry(Part.LineSegment(Vector(7, 2, 0), Vector(-7, 2, 0)), False)
sketch8.addGeometry(Part.LineSegment(Vector(7, -7, 0), Vector(-7, -7, 0)), False)
sketch8.addGeometry(Part.LineSegment(Vector(-7, -7, 0), Vector(-7, 1, 0)), False)
sketch8.addGeometry(Part.LineSegment(Vector(-7, 1, 0), Vector(7, 1, 0)), False)
sketch8.addGeometry(Part.LineSegment(Vector(7, 1, 0), Vector(7, -7, 0)), False)
sketch8.addConstraint(Sketcher.Constraint("Coincident", 0, 2, 1, 1))
sketch8.addConstraint(Sketcher.Constraint("Coincident", 1, 2, 2, 1))
sketch8.addConstraint(Sketcher.Constraint("Coincident", 2, 2, 3, 1))
sketch8.addConstraint(Sketcher.Constraint("Coincident", 3, 2, 0, 1))
sketch8.addConstraint(Sketcher.Constraint("Coincident", 4, 2, 5, 1))
sketch8.addConstraint(Sketcher.Constraint("Coincident", 5, 2, 6, 1))
sketch8.addConstraint(Sketcher.Constraint("Coincident", 6, 2, 7, 1))
sketch8.addConstraint(Sketcher.Constraint("Coincident", 7, 2, 4, 1))
sketch8.addConstraint(Sketcher.Constraint("Vertical", 0))
sketch8.addConstraint(Sketcher.Constraint("Horizontal", 1))
sketch8.addConstraint(Sketcher.Constraint("Vertical", 2))
sketch8.addConstraint(Sketcher.Constraint("Horizontal", 3))
sketch8.addConstraint(Sketcher.Constraint("Horizontal", 4))
sketch8.addConstraint(Sketcher.Constraint("Vertical", 5))
sketch8.addConstraint(Sketcher.Constraint("Horizontal", 6))
sketch8.addConstraint(Sketcher.Constraint("Vertical", 7))
sketch8.addConstraint(Sketcher.Constraint("DistanceX", 1, 1, 1, 2, Q("14.73 mm")))
sketch8.addConstraint(Sketcher.Constraint("DistanceX", 4, 2, 4, 1, Q("13.73 mm")))
sketch8.addConstraint(Sketcher.Constraint("DistanceY", 0, 2, 0, 1, Q("8.64 mm")))
sketch8.addConstraint(Sketcher.Constraint("DistanceY", 5, 1, 5, 2, Q("7.64 mm")))
sketch8.addConstraint(Sketcher.Constraint("DistanceX", 0, 2, 4, 2, Q("0.5 mm")))
sketch8.addConstraint(Sketcher.Constraint("DistanceY", 0, 2, 4, 2, Q("0.5 mm")))
sketch8.addConstraint(Sketcher.Constraint("DistanceY", 0, 2, -1, 1, Q("7.11 mm")))
sketch8.addConstraint(Sketcher.Constraint("DistanceX", 0, 2, -1, 1, Q("7.365 mm")))
sketch8.setExpression("Constraints[16]", "Params.sketch8_width")
sketch8.setExpression("Constraints[17]", "Params.sketch8_width2")
sketch8.setExpression("Constraints[18]", "Params.sketch8_height")
sketch8.setExpression("Constraints[19]", "Params.sketch8_height2")
pad8 = body8.newObject("PartDesign::Pad", "Pad007")
pad8.Profile = sketch8
pad8.setExpression("Length", "Params.pad8_length")

doc.recompute()
